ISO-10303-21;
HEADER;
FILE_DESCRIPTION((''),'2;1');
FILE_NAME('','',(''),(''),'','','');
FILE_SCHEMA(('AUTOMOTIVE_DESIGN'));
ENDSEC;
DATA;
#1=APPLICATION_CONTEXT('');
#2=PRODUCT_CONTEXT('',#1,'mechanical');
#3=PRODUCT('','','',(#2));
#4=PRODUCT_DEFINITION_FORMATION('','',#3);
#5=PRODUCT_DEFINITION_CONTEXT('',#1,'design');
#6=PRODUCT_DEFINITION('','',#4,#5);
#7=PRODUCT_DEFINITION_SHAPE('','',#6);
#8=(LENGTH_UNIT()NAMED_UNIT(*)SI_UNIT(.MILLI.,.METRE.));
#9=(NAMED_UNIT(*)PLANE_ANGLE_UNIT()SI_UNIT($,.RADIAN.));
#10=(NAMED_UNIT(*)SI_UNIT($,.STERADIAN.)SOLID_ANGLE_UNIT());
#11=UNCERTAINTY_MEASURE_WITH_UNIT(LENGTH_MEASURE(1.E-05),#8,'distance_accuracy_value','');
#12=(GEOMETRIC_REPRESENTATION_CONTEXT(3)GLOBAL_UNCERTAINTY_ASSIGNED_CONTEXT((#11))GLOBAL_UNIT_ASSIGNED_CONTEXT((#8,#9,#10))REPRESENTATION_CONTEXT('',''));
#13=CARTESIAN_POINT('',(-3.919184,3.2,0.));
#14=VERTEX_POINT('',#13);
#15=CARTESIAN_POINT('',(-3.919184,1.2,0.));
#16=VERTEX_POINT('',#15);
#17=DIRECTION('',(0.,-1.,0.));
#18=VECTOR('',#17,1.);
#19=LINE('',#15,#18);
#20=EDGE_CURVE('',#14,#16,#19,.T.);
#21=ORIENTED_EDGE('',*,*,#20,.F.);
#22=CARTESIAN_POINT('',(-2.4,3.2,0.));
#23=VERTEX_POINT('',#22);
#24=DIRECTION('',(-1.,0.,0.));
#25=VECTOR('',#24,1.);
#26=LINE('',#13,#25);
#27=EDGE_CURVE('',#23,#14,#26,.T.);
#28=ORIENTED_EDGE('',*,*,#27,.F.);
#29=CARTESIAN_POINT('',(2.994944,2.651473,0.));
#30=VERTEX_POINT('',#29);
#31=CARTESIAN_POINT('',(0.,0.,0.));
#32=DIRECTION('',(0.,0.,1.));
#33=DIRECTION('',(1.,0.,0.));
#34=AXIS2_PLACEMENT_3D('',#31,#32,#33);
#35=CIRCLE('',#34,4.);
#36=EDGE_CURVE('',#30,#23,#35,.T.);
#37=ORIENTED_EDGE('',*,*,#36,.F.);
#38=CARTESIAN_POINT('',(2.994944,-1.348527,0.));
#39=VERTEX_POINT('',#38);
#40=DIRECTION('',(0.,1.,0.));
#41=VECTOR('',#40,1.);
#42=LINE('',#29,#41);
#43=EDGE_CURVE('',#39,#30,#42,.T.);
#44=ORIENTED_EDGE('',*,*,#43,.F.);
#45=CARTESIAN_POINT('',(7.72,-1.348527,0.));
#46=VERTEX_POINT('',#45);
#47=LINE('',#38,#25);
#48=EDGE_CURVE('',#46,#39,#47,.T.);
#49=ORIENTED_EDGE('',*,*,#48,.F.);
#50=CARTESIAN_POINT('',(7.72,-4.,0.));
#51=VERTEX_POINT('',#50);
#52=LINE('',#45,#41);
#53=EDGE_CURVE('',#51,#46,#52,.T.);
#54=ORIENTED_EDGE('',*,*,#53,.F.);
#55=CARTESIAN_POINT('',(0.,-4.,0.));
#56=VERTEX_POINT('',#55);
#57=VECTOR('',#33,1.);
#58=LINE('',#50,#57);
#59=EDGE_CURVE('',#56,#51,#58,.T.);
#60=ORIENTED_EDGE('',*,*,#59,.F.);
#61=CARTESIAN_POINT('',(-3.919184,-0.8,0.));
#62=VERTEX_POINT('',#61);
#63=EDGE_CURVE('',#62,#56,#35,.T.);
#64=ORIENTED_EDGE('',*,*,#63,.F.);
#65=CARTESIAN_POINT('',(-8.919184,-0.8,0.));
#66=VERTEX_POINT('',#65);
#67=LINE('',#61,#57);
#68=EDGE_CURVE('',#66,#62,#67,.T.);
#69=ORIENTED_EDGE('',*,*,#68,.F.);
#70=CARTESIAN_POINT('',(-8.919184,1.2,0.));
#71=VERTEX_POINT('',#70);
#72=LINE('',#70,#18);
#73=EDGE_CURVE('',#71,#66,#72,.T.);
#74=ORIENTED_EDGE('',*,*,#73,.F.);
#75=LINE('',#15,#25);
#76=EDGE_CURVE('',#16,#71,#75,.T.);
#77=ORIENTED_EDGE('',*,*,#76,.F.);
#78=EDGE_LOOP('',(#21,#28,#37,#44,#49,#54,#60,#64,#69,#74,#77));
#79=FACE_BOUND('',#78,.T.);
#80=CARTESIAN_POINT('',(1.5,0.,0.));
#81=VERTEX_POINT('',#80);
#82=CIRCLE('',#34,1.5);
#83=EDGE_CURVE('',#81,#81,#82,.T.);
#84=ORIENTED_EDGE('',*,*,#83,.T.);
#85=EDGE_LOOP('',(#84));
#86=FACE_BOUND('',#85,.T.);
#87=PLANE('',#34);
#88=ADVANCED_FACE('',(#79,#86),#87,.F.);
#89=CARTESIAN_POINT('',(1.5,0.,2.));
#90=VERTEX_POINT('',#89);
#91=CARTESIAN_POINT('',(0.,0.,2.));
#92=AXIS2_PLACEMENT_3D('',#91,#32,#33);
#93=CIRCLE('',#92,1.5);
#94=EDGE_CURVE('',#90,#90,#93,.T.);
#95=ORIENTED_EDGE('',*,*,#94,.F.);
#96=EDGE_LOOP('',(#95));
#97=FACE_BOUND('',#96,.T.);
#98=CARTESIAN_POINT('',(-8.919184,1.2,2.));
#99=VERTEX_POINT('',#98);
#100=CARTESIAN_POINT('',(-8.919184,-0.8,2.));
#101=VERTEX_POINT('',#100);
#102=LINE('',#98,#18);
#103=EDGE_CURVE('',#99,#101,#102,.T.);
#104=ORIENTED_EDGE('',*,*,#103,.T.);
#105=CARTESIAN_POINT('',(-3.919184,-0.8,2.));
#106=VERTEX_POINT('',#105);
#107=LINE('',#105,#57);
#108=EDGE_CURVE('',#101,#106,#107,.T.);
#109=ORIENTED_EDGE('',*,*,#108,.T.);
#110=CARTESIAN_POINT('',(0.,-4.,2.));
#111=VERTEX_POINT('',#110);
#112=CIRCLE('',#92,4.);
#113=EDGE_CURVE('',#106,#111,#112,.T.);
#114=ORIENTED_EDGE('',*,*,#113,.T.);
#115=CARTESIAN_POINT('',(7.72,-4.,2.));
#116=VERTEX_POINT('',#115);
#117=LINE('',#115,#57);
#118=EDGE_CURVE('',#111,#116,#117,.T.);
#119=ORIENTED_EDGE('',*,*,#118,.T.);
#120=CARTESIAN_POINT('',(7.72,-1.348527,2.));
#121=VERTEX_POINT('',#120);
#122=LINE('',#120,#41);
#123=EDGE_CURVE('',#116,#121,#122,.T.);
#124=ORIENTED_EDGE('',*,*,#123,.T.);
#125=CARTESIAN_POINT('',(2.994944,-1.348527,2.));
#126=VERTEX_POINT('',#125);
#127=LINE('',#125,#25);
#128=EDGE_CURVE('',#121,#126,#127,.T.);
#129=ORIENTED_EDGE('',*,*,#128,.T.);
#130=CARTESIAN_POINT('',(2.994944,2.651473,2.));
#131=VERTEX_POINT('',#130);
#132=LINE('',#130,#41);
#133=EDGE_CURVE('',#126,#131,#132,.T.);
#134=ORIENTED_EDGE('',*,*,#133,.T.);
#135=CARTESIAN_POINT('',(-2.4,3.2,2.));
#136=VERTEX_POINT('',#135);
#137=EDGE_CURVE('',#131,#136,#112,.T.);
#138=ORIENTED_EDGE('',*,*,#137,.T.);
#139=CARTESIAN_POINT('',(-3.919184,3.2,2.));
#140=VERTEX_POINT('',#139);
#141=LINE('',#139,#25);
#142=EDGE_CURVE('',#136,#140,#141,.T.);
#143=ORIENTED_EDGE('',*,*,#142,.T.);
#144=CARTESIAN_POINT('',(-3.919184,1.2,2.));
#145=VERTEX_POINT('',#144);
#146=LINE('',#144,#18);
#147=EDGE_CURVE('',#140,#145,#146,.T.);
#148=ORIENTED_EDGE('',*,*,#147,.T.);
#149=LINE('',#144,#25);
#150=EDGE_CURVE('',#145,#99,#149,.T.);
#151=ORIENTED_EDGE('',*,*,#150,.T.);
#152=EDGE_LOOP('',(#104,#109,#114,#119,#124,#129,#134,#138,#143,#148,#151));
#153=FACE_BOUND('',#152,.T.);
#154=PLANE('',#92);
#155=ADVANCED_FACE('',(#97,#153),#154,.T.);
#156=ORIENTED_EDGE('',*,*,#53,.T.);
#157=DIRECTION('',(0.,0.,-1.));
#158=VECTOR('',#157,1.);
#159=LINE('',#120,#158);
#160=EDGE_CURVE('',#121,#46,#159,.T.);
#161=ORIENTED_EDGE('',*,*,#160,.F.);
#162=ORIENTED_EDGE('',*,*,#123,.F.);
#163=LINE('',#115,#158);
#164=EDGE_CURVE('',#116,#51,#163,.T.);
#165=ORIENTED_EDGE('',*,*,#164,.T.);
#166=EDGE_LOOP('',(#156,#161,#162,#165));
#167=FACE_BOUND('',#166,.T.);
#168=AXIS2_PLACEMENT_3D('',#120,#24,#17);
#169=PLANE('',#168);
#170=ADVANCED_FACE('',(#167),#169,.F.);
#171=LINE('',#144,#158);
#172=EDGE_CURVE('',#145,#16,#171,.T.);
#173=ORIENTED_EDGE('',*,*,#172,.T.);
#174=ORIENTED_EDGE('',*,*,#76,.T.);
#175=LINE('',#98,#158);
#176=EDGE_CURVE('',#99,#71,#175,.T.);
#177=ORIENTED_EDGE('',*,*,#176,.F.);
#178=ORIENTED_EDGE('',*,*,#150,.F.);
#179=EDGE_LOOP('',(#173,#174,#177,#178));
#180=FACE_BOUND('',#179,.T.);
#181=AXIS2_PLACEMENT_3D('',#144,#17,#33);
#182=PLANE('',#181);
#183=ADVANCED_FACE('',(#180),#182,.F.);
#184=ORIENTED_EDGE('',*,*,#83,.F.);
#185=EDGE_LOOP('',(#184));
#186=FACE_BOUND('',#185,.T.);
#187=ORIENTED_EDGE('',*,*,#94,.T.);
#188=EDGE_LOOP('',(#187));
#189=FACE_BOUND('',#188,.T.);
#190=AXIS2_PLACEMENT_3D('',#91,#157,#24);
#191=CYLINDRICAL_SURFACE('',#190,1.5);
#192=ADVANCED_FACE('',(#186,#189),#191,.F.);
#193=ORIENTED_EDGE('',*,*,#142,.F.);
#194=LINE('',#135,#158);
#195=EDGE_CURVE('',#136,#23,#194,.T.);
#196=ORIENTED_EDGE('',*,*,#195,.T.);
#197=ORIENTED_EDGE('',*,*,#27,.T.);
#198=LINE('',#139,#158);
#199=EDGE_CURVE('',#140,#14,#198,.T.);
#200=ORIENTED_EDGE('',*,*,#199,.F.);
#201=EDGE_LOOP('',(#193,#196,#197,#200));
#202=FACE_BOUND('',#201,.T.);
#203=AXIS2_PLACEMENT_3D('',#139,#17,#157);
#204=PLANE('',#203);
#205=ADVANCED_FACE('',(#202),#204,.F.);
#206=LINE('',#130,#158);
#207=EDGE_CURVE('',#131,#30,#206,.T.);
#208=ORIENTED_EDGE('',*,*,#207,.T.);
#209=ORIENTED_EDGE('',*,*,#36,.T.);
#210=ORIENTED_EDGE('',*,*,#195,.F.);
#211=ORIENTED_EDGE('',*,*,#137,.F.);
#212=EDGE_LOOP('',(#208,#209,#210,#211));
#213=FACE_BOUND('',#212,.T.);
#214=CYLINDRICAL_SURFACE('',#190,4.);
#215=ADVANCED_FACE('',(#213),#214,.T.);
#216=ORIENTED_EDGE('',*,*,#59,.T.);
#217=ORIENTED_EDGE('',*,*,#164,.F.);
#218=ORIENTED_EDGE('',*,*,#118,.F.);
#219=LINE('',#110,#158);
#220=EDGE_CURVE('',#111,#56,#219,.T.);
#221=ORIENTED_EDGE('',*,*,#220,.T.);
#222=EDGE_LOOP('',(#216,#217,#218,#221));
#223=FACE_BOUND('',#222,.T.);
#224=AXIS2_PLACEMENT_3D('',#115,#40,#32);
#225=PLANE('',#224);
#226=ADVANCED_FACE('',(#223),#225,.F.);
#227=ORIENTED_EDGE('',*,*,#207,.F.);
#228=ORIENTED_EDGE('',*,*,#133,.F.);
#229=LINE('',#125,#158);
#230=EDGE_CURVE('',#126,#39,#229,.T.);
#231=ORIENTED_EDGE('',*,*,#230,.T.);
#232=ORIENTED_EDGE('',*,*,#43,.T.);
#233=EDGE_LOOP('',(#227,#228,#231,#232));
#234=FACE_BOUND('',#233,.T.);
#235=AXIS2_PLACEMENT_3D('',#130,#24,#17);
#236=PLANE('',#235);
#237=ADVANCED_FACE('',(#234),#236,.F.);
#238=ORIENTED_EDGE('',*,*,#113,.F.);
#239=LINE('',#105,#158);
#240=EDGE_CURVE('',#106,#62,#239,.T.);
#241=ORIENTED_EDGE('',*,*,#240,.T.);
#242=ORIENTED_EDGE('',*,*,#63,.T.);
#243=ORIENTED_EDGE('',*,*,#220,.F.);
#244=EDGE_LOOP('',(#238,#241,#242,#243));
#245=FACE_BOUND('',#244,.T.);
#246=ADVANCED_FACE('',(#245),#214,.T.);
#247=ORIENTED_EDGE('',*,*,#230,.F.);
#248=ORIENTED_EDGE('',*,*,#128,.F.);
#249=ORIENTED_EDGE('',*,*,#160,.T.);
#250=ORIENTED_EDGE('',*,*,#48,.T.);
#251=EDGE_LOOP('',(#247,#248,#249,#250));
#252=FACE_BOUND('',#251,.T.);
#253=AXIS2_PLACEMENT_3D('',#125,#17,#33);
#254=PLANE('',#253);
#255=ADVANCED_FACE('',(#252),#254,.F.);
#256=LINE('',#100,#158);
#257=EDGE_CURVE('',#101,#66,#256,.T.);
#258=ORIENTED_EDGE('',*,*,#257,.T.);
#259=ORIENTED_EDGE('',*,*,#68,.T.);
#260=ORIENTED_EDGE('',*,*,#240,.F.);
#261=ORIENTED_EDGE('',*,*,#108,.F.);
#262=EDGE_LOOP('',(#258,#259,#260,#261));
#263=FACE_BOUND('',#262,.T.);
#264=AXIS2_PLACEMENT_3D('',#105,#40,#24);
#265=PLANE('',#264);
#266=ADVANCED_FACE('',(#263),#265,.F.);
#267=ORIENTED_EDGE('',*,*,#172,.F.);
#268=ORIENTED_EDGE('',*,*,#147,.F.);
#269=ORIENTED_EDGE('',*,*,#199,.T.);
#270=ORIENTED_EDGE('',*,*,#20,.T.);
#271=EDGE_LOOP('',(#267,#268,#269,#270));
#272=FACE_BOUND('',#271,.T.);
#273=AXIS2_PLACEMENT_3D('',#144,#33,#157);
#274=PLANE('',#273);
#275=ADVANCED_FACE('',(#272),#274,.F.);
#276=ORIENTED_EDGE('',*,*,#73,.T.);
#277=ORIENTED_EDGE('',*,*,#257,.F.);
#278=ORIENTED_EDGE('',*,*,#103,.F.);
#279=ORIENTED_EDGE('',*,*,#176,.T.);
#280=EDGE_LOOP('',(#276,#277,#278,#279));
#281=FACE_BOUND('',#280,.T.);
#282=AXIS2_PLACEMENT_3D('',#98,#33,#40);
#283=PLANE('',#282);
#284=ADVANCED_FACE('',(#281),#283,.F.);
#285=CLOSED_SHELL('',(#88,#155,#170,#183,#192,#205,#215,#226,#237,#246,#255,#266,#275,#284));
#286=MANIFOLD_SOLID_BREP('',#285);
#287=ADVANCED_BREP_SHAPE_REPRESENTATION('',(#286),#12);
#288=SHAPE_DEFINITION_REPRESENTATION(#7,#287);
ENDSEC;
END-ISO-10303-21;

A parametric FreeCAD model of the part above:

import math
import FreeCAD as App
import Part
import Sketcher

V = App.Vector

doc = App.newDocument("Part")
body = doc.addObject("PartDesign::Body", "Body")

# Sketch on XY plane
sketch1 = body.newObject("Sketcher::SketchObject", "Sketch")
sketch1.AttachmentSupport = (doc.getObject("XY_Plane"), [""])
sketch1.MapMode = "FlatFace"
sketch1.addGeometry(Part.LineSegment(V(0, -4, 0), V(7.72, -4, 0)), False)
sketch1.addGeometry(Part.LineSegment(V(7.72, -4, 0), V(7.72, -1.348527, 0)), False)
sketch1.addGeometry(Part.LineSegment(V(7.72, -1.348527, 0), V(2.994944, -1.348527, 0)), False)
sketch1.addGeometry(Part.LineSegment(V(2.994944, -1.348527, 0), V(2.994944, 2.651473, 0)), False)
sketch1.addGeometry(Part.ArcOfCircle(Part.Circle(V(0, 0, 0), V(0, 0, 1), 4), math.radians(41.518994), math.radians(126.869898)), False)
sketch1.addGeometry(Part.LineSegment(V(-2.4, 3.2, 0), V(-3.919184, 3.2, 0)), False)
sketch1.addGeometry(Part.LineSegment(V(-3.919184, 3.2, 0), V(-3.919184, 1.2, 0)), False)
sketch1.addGeometry(Part.LineSegment(V(-3.919184, 1.2, 0), V(-8.919184, 1.2, 0)), False)
sketch1.addGeometry(Part.LineSegment(V(-8.919184, 1.2, 0), V(-8.919184, -0.8, 0)), False)
sketch1.addGeometry(Part.LineSegment(V(-8.919184, -0.8, 0), V(-3.919184, -0.8, 0)), False)
sketch1.addGeometry(Part.ArcOfCircle(Part.Circle(V(0, 0, 0), V(0, 0, 1), 4), math.radians(-168.463041), math.radians(-90)), False)
sketch1.addGeometry(Part.Circle(V(0, 0, 0), V(0, 0, 1), 1.5), False)
sketch1.addConstraint(Sketcher.Constraint("Coincident", 0, 2, 1, 1))
sketch1.addConstraint(Sketcher.Constraint("Coincident", 1, 2, 2, 1))
sketch1.addConstraint(Sketcher.Constraint("Coincident", 2, 2, 3, 1))
sketch1.addConstraint(Sketcher.Constraint("Coincident", 3, 2, 4, 1))
sketch1.addConstraint(Sketcher.Constraint("Coincident", 4, 2, 5, 1))
sketch1.addConstraint(Sketcher.Constraint("Coincident", 5, 2, 6, 1))
sketch1.addConstraint(Sketcher.Constraint("Coincident", 6, 2, 7, 1))
sketch1.addConstraint(Sketcher.Constraint("Coincident", 7, 2, 8, 1))
sketch1.addConstraint(Sketcher.Constraint("Coincident", 8, 2, 9, 1))
sketch1.addConstraint(Sketcher.Constraint("Coincident", 9, 2, 10, 1))
sketch1.addConstraint(Sketcher.Constraint("Tangent", 10, 2, 0, 1))
sketch1.addConstraint(Sketcher.Constraint("Horizontal", 0))
sketch1.addConstraint(Sketcher.Constraint("Vertical", 1))
sketch1.addConstraint(Sketcher.Constraint("Horizontal", 2))
sketch1.addConstraint(Sketcher.Constraint("Vertical", 3))
sketch1.addConstraint(Sketcher.Constraint("Horizontal", 5))
sketch1.addConstraint(Sketcher.Constraint("Vertical", 6))
sketch1.addConstraint(Sketcher.Constraint("Horizontal", 7))
sketch1.addConstraint(Sketcher.Constraint("Vertical", 8))
sketch1.addConstraint(Sketcher.Constraint("Horizontal", 9))
sketch1.addConstraint(Sketcher.Constraint("Coincident", 4, 3, -1, 1))
sketch1.addConstraint(Sketcher.Constraint("Coincident", 10, 3, -1, 1))
sketch1.addConstraint(Sketcher.Constraint("Coincident", 11, 3, -1, 1))
sketch1.addConstraint(Sketcher.Constraint("Equal", 4, 10))
sketch1.addConstraint(Sketcher.Constraint("Vertical", 6, 2, 9, 2))
sketch1.addConstraint(Sketcher.Constraint("Equal", 6, 8))
sketch1.addConstraint(Sketcher.Constraint("Diameter", 11, 3.0))
sketch1.addConstraint(Sketcher.Constraint("Radius", 4, 4.0))
sketch1.addConstraint(Sketcher.Constraint("DistanceX", 7, 2, 7, 1, 5.0))
sketch1.addConstraint(Sketcher.Constraint("DistanceY", 3, 1, 3, 2, 4.0))
sketch1.addConstraint(Sketcher.Constraint("DistanceY", 6, 2, 6, 1, 2.0))
sketch1.addConstraint(Sketcher.Constraint("DistanceX", 0, 1, 0, 2, 7.72))
sketch1.addConstraint(Sketcher.Constraint("DistanceX", 4, 2, -1, 1, 2.4))
sketch1.addConstraint(Sketcher.Constraint("DistanceX", 2, 2, 2, 1, 4.725056))
pad1 = body.newObject("PartDesign::Pad", "Pad")
pad1.Profile = sketch1
pad1.Length = 2

doc.recompute()
